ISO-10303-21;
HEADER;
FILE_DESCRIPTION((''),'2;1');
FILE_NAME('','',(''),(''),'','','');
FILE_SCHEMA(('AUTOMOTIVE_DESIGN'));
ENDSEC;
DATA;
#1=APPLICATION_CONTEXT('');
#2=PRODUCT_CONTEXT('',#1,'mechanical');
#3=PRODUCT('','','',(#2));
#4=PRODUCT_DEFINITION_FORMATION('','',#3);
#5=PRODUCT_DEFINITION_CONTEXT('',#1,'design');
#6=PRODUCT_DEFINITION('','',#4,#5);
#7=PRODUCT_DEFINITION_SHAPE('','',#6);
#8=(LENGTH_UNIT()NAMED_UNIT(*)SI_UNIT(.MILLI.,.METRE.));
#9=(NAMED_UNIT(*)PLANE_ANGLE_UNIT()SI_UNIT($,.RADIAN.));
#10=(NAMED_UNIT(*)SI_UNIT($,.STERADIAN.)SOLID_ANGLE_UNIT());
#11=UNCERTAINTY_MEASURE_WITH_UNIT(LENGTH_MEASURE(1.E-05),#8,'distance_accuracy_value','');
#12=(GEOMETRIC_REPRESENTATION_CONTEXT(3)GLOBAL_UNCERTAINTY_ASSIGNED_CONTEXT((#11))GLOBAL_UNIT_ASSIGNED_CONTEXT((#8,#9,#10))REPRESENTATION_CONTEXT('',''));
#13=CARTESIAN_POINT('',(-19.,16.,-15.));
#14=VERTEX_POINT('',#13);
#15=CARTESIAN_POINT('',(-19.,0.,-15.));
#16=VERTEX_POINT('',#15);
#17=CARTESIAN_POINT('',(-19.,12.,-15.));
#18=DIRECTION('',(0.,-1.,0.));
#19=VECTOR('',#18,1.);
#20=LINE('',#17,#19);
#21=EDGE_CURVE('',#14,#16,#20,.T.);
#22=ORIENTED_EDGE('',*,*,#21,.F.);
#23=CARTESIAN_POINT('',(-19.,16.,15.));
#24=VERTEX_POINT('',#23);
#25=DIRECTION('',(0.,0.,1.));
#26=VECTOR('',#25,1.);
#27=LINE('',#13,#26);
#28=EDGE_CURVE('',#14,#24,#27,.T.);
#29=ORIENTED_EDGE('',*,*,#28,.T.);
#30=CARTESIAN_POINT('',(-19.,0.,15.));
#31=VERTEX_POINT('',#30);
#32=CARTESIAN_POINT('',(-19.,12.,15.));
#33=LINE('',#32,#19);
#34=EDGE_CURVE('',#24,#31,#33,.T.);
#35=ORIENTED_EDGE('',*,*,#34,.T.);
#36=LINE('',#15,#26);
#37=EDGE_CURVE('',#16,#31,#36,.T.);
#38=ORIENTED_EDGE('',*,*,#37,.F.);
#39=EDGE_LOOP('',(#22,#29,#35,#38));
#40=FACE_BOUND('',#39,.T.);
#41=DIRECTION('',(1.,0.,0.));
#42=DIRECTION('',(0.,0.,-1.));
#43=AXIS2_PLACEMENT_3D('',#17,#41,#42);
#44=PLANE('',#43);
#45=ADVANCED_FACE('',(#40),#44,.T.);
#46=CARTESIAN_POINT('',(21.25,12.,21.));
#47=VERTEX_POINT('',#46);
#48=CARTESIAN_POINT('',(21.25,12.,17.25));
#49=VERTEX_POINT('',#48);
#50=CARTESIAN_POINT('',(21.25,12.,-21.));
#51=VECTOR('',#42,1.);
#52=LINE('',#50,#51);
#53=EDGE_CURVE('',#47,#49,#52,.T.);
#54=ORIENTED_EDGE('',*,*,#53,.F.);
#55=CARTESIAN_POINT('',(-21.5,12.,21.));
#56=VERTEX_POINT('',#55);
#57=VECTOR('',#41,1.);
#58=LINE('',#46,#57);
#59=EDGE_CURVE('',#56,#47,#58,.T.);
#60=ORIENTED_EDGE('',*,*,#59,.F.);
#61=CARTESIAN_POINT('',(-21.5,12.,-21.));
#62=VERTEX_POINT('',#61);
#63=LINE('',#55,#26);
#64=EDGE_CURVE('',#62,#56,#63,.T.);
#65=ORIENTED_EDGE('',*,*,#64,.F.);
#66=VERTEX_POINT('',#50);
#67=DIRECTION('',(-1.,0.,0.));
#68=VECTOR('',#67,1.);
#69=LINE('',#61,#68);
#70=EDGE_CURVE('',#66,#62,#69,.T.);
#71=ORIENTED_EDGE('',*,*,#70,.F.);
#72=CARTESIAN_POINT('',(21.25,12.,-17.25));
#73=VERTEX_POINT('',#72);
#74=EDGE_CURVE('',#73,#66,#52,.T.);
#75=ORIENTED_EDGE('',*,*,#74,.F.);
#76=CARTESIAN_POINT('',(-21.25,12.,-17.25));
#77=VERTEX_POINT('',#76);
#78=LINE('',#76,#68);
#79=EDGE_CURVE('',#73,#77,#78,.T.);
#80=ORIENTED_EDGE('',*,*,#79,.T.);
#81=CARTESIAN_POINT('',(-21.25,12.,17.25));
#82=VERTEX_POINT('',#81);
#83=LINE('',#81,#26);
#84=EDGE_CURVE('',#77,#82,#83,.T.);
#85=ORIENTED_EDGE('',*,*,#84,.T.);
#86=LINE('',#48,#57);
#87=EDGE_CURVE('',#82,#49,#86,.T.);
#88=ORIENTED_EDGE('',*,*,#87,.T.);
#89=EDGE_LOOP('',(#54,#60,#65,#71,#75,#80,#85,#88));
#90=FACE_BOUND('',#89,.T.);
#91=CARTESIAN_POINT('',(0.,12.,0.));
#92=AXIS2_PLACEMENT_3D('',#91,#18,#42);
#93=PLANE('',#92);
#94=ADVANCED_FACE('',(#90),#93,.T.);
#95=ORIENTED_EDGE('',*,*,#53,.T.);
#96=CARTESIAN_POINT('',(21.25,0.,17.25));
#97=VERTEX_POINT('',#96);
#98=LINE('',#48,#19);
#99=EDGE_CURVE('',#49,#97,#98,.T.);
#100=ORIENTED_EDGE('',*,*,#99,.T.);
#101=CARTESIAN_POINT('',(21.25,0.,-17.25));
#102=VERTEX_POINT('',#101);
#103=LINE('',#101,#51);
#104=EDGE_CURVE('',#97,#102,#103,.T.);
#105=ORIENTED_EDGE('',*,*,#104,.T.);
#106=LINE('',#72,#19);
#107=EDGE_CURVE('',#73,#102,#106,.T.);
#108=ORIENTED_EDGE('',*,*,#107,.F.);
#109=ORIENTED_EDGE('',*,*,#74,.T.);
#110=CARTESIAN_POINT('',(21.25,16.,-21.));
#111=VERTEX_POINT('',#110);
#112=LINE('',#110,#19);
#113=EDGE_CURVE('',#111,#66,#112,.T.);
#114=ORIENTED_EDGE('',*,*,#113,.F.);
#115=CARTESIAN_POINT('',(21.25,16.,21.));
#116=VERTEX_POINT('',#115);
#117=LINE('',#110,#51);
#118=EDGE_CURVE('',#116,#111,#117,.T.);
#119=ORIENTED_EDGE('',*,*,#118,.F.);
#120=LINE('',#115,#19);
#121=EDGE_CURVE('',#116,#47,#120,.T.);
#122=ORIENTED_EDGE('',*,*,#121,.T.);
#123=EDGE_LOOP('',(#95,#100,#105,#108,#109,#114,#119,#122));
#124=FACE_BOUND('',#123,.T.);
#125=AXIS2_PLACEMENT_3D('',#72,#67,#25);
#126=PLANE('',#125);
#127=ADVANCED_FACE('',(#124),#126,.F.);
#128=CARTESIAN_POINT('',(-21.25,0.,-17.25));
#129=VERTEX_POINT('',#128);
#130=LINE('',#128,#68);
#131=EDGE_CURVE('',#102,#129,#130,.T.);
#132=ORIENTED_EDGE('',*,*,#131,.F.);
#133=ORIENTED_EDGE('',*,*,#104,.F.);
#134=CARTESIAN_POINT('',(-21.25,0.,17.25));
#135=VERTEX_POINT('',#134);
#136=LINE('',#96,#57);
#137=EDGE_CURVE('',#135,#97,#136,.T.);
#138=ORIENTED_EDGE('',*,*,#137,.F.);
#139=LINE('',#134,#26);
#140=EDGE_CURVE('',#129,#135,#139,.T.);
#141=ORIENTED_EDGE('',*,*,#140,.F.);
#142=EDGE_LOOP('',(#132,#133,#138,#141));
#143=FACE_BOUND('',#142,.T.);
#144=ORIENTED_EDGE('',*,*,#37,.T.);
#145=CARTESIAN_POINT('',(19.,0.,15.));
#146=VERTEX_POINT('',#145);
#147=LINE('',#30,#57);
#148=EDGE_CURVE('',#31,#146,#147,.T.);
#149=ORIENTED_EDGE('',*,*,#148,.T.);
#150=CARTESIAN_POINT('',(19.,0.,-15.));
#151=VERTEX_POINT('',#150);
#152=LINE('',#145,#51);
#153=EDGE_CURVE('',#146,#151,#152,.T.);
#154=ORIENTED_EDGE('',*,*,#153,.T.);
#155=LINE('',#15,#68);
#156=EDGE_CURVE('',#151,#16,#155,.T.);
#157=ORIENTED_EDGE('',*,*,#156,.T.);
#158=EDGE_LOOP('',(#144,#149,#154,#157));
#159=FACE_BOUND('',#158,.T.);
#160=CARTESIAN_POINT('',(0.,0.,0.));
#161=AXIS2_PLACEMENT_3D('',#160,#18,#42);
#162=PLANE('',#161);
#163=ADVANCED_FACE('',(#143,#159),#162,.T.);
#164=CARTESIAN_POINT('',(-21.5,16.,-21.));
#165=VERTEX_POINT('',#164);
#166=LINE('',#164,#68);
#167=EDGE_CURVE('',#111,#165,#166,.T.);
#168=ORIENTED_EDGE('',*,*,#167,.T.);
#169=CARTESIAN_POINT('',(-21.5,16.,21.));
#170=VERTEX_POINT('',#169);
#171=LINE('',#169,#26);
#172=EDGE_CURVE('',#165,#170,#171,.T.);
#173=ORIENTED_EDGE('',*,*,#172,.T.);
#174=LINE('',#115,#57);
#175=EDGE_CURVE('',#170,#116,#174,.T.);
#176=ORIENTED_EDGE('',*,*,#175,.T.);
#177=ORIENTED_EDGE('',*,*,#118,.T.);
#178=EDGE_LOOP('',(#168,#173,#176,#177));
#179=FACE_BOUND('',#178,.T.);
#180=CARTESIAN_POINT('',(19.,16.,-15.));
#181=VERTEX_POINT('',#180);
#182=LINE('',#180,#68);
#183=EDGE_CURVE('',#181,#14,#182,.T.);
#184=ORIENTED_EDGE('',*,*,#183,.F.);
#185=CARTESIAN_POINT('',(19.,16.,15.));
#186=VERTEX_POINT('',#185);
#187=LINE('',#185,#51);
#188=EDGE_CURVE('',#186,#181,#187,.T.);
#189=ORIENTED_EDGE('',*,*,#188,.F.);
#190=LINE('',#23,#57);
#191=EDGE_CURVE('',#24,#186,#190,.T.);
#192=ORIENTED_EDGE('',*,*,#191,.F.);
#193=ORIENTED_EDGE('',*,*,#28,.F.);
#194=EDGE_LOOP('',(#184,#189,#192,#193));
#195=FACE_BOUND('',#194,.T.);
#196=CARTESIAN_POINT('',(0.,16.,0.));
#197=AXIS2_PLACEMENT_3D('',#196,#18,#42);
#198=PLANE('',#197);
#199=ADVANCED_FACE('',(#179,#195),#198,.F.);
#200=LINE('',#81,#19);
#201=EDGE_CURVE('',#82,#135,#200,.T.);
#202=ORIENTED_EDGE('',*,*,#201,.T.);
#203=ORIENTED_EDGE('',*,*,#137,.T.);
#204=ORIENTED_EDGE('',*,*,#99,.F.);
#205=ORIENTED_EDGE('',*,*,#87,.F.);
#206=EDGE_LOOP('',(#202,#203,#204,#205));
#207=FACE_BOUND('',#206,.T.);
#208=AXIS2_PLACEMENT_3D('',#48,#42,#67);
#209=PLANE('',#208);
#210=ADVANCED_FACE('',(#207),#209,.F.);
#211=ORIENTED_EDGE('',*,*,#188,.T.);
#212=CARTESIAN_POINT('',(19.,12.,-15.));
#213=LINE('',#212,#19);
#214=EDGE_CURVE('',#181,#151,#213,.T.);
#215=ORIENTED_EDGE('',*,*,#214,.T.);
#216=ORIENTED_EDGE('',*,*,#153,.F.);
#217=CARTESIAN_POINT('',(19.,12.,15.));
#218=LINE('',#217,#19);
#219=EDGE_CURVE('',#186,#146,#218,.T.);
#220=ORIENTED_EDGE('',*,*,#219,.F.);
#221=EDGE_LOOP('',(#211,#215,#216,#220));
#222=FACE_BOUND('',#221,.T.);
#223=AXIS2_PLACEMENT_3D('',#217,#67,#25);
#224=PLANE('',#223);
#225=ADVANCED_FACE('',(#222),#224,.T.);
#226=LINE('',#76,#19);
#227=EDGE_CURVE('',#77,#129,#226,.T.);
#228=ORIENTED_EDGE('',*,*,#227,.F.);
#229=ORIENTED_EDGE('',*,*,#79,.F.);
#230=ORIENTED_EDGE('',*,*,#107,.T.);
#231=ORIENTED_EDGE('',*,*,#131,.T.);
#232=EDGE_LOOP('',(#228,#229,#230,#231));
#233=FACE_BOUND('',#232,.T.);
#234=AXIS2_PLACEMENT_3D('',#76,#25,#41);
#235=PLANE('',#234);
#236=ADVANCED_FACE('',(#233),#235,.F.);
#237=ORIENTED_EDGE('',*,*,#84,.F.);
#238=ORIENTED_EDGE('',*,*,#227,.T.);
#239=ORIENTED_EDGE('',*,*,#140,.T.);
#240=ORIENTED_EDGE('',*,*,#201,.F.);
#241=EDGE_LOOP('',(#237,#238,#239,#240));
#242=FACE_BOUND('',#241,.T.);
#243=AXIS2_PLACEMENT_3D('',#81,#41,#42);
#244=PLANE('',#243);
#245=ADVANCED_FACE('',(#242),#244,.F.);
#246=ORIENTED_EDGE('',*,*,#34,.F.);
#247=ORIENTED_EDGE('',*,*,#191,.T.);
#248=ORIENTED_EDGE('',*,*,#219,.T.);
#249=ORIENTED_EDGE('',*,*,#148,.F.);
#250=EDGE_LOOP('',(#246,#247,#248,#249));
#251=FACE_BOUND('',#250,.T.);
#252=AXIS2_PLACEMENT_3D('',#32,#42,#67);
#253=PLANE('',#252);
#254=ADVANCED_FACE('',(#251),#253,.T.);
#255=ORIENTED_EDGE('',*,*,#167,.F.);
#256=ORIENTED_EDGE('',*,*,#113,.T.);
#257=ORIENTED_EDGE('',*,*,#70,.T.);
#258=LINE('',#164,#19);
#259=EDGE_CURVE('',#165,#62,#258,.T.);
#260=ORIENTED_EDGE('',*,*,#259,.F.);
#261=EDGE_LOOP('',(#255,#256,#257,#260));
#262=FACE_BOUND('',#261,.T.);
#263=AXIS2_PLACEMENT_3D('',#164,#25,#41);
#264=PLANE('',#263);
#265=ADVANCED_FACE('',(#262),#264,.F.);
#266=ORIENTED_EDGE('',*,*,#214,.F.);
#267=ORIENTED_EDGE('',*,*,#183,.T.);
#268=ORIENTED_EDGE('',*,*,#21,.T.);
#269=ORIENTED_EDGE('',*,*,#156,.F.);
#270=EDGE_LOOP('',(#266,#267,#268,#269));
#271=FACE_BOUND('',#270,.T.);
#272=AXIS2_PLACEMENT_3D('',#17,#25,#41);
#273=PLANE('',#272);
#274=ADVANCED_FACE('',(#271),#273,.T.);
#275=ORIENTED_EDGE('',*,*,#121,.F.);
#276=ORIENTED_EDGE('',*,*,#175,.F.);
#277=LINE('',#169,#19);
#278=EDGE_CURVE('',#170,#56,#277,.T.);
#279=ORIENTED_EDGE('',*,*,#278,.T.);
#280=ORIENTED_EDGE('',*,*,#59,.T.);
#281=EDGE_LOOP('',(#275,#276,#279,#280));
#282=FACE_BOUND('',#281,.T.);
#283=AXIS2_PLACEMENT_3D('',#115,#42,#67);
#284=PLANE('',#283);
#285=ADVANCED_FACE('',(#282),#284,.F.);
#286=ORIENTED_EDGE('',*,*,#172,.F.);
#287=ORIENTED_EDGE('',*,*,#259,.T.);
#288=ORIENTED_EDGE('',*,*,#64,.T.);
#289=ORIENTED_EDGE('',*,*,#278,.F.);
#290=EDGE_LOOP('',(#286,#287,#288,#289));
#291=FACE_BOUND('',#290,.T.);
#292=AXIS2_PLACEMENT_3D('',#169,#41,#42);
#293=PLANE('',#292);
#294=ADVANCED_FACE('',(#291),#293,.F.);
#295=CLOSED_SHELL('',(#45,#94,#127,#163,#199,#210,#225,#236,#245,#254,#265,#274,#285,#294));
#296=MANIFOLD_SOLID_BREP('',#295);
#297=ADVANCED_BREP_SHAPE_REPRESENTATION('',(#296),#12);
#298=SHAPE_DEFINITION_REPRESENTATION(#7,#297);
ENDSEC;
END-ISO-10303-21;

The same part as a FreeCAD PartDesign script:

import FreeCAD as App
import Part
import Sketcher

V = App.Vector

doc = App.newDocument("Part")
body = doc.addObject("PartDesign::Body", "Body")

# Sketch on XZ plane
sketch1 = body.newObject("Sketcher::SketchObject", "Sketch")
sketch1.AttachmentSupport = (doc.getObject("XZ_Plane"), [""])
sketch1.MapMode = "FlatFace"
sketch1.addGeometry([
    Part.LineSegment(V(-21.25, -17.25, 0), V(-21.25, 17.25, 0)),  # 0
    Part.LineSegment(V(-21.25, 17.25, 0), V(21.25, 17.25, 0)),  # 1
    Part.LineSegment(V(21.25, 17.25, 0), V(21.25, -17.25, 0)),  # 2
    Part.LineSegment(V(21.25, -17.25, 0), V(-21.25, -17.25, 0)),  # 3
    Part.LineSegment(V(19, 15, 0), V(-19, 15, 0)),  # 4
    Part.LineSegment(V(-19, 15, 0), V(-19, -15, 0)),  # 5
    Part.LineSegment(V(-19, -15, 0), V(19, -15, 0)),  # 6
    Part.LineSegment(V(19, -15, 0), V(19, 15, 0)),  # 7
], False)
sketch1.addConstraint([
    Sketcher.Constraint("Coincident", 0, 2, 1, 1),
    Sketcher.Constraint("Coincident", 1, 2, 2, 1),
    Sketcher.Constraint("Coincident", 2, 2, 3, 1),
    Sketcher.Constraint("Coincident", 3, 2, 0, 1),
    Sketcher.Constraint("Coincident", 4, 2, 5, 1),
    Sketcher.Constraint("Coincident", 5, 2, 6, 1),
    Sketcher.Constraint("Coincident", 6, 2, 7, 1),
    Sketcher.Constraint("Coincident", 7, 2, 4, 1),
    Sketcher.Constraint("Vertical", 0),
    Sketcher.Constraint("Horizontal", 1),
    Sketcher.Constraint("Vertical", 2),
    Sketcher.Constraint("Horizontal", 3),
    Sketcher.Constraint("Horizontal", 4),
    Sketcher.Constraint("Vertical", 5),
    Sketcher.Constraint("Horizontal", 6),
    Sketcher.Constraint("Vertical", 7),
    Sketcher.Constraint("Symmetric", 0, 2, 2, 2, -1, 1),
    Sketcher.Constraint("Symmetric", 4, 2, 6, 2, -1, 1),
    Sketcher.Constraint("DistanceX", 4, 2, 4, 1, 38.0),
    Sketcher.Constraint("DistanceY", 5, 2, 5, 1, 30.0),
    Sketcher.Constraint("DistanceX", 1, 1, 1, 2, 42.5),
    Sketcher.Constraint("DistanceY", 0, 1, 0, 2, 34.5),
])
pad1 = body.newObject("PartDesign::Pad", "Pad")
pad1.Profile = sketch1
pad1.Length = 12
pad1.Reversed = True

# Sketch on XZ plane
sketch2 = body.newObject("Sketcher::SketchObject", "Sketch001")
sketch2.AttachmentSupport = (doc.getObject("XZ_Plane"), [""])
sketch2.MapMode = "FlatFace"
sketch2.AttachmentOffset = App.Placement(V(0, 0, -12), App.Rotation())
sketch2.addGeometry([
    Part.LineSegment(V(-21.5, -21, 0), V(-21.5, 21, 0)),  # 0
    Part.LineSegment(V(-21.5, 21, 0), V(21.25, 21, 0)),  # 1
    Part.LineSegment(V(21.25, 21, 0), V(21.25, -21, 0)),  # 2
    Part.LineSegment(V(21.25, -21, 0), V(-21.5, -21, 0)),  # 3
    Part.LineSegment(V(19, 15, 0), V(-19, 15, 0)),  # 4
    Part.LineSegment(V(-19, 15, 0), V(-19, -15, 0)),  # 5
    Part.LineSegment(V(-19, -15, 0), V(19, -15, 0)),  # 6
    Part.LineSegment(V(19, -15, 0), V(19, 15, 0)),  # 7
], False)
sketch2.addConstraint([
    Sketcher.Constraint("Coincident", 0, 2, 1, 1),
    Sketcher.Constraint("Coincident", 1, 2, 2, 1),
    Sketcher.Constraint("Coincident", 2, 2, 3, 1),
    Sketcher.Constraint("Coincident", 3, 2, 0, 1),
    Sketcher.Constraint("Coincident", 4, 2, 5, 1),
    Sketcher.Constraint("Coincident", 5, 2, 6, 1),
    Sketcher.Constraint("Coincident", 6, 2, 7, 1),
    Sketcher.Constraint("Coincident", 7, 2, 4, 1),
    Sketcher.Constraint("Vertical", 0),
    Sketcher.Constraint("Horizontal", 1),
    Sketcher.Constraint("Vertical", 2),
    Sketcher.Constraint("Horizontal", 3),
    Sketcher.Constraint("Horizontal", 4),
    Sketcher.Constraint("Vertical", 5),
    Sketcher.Constraint("Horizontal", 6),
    Sketcher.Constraint("Vertical", 7),
    Sketcher.Constraint("Symmetric", 4, 2, 6, 2, -1, 1),
    Sketcher.Constraint("DistanceX", 4, 2, 4, 1, 38.0),
    Sketcher.Constraint("DistanceY", 0, 1, 0, 2, 42.0),
    Sketcher.Constraint("DistanceY", 5, 2, 5, 1, 30.0),
    Sketcher.Constraint("DistanceY", -1, 1, 0, 2, 21.0),
    Sketcher.Constraint("DistanceX", 1, 1, 1, 2, 42.75),
    Sketcher.Constraint("DistanceX", 0, 2, -1, 1, 21.5),
])
pad2 = body.newObject("PartDesign::Pad", "Pad001")
pad2.Profile = sketch2
pad2.Length = 4
pad2.Reversed = True

doc.recompute()
